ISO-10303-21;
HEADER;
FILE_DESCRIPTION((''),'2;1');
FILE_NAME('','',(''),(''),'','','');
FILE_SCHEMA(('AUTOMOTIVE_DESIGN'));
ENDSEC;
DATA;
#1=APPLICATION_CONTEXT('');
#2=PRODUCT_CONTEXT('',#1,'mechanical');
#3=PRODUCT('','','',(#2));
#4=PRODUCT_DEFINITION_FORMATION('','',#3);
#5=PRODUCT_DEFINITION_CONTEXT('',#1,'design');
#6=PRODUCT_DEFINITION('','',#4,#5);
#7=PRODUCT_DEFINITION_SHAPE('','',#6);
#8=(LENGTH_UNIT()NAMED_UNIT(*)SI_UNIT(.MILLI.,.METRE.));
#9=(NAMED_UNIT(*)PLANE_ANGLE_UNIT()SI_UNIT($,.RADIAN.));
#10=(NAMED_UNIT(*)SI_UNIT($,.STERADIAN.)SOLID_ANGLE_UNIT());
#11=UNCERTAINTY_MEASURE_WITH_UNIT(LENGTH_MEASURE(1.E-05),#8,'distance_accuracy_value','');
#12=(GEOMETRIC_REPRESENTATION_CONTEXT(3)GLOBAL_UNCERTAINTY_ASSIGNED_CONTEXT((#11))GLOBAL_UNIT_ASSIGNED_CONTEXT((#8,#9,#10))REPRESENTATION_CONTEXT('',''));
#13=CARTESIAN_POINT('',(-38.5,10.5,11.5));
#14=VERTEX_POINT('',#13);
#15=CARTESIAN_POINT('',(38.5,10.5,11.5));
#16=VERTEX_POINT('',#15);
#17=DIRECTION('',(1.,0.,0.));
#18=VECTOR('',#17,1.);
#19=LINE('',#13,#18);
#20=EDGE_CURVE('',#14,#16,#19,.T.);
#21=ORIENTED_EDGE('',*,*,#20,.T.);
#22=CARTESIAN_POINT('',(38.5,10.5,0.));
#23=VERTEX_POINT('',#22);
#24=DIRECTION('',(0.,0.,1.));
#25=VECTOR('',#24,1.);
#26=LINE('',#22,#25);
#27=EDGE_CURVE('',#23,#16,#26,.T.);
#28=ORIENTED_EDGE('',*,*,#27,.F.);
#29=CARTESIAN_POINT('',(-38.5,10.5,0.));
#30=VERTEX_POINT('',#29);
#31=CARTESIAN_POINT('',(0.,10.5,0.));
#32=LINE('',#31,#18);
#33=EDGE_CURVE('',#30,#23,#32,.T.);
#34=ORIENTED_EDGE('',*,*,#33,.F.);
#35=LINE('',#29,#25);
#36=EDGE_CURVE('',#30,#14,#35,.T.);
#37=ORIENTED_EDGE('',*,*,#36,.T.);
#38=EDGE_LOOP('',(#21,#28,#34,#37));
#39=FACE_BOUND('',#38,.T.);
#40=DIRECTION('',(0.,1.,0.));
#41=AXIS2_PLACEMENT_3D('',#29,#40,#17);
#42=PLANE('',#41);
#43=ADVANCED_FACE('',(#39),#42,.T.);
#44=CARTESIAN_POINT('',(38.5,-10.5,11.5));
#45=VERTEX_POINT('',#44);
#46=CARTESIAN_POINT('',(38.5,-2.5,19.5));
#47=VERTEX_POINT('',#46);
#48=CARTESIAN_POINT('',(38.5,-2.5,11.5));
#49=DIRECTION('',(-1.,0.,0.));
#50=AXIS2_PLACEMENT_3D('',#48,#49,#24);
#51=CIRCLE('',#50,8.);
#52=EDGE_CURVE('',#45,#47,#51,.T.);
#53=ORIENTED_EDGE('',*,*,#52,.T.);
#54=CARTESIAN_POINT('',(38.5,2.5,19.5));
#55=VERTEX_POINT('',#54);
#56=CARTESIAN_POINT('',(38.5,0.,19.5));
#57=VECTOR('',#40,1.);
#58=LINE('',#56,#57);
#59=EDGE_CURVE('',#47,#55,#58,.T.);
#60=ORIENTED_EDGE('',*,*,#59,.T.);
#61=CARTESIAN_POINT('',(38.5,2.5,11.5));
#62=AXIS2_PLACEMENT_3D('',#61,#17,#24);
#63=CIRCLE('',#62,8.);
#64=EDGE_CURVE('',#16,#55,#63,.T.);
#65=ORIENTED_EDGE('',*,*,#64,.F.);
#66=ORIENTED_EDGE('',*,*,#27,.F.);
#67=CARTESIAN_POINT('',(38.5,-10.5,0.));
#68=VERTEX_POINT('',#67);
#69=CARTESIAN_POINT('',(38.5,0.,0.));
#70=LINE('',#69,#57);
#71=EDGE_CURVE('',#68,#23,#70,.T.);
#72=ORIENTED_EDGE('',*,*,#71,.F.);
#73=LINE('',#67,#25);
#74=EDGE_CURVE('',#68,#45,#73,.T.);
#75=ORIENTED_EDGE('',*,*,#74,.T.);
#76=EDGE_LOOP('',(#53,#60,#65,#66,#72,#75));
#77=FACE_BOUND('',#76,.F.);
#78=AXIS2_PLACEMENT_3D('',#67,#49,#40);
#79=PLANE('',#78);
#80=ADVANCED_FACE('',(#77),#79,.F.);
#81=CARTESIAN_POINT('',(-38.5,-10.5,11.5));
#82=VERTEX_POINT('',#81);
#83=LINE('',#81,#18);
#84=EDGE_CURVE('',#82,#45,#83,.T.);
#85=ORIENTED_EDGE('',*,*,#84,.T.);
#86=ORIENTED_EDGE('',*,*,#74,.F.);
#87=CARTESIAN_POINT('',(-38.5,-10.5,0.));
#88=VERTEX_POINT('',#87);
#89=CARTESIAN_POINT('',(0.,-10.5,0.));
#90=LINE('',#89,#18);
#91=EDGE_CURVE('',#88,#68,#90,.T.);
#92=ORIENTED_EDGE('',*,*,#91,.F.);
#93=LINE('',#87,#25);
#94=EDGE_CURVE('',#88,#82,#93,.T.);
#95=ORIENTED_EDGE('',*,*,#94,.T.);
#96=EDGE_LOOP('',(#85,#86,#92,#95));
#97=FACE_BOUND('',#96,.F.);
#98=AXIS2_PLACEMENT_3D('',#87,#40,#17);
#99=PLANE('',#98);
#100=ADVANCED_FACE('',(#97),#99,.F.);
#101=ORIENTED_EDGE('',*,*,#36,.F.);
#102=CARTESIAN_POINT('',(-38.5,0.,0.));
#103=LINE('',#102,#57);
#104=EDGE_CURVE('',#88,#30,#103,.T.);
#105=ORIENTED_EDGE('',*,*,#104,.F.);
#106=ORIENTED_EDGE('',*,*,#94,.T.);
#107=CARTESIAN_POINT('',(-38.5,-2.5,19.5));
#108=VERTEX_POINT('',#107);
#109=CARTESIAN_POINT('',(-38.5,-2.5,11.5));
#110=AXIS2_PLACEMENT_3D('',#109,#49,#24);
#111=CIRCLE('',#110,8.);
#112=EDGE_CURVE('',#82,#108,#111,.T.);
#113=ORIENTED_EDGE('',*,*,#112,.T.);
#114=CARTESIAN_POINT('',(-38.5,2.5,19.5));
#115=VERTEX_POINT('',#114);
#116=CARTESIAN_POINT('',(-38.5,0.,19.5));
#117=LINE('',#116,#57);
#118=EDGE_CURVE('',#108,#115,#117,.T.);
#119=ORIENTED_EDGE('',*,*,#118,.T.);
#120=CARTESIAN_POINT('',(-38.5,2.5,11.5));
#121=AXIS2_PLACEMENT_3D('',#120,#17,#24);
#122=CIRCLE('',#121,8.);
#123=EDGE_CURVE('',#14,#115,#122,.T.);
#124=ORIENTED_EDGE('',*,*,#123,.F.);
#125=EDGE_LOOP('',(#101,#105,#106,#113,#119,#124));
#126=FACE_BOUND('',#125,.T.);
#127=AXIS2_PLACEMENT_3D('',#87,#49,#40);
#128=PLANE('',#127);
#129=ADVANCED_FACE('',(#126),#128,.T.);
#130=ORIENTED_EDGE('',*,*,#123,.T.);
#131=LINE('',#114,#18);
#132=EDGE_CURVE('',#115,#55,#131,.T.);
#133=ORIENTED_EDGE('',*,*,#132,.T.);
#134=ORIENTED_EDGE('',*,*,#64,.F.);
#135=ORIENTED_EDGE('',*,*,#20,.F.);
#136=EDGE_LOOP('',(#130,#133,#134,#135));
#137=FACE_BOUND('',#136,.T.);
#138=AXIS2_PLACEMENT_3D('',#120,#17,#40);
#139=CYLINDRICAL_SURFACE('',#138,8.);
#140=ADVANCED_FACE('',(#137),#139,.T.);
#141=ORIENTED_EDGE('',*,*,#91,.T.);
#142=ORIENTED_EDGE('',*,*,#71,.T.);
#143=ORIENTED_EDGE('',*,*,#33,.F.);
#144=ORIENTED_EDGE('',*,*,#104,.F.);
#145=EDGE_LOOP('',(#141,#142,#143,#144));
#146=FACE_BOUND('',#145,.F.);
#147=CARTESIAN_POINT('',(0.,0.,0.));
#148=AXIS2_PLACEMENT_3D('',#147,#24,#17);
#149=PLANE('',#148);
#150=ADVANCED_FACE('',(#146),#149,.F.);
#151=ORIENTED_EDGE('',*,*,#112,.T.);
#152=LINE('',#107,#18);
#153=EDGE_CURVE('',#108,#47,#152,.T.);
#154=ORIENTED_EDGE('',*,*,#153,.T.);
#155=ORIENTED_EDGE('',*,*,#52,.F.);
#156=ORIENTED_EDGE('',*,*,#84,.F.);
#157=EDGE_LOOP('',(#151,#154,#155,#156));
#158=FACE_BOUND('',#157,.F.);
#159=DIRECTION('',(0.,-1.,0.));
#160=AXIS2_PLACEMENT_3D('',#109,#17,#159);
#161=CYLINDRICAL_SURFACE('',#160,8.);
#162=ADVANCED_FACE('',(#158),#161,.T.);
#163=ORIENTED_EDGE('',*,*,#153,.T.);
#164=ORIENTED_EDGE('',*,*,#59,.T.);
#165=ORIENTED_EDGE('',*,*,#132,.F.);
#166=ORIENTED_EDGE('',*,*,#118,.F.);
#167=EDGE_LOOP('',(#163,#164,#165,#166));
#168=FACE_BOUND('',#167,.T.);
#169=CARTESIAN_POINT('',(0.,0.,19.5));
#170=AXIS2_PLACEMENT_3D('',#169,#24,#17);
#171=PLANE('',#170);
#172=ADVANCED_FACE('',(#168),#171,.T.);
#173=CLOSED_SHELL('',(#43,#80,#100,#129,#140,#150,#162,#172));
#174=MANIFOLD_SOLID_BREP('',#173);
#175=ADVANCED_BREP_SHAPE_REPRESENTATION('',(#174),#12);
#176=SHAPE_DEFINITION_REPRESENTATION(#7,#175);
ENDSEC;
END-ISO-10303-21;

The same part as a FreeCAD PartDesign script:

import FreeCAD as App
import Part
import Sketcher
from FreeCAD import Vector


def edges_at(feature, points):
    """Names of the edges that pass closest to the given points."""
    edges = feature.Shape.Edges
    near = lambda p: min(range(len(edges)), key=lambda i: edges[i].distToShape(Part.Vertex(*p))[0])
    return sorted({f"Edge{near(p) + 1}" for p in points})

doc = App.newDocument("Part")
body = doc.addObject("PartDesign::Body", "Body")

sketch1 = body.newObject("Sketcher::SketchObject", "Sketch")
sketch1.AttachmentSupport = (doc.getObject("XY_Plane"), [""])
sketch1.MapMode = "FlatFace"
sketch1.addGeometry([
    Part.LineSegment(Vector(-38, 10, 0), Vector(-38, -10, 0)),
    Part.LineSegment(Vector(-38, -10, 0), Vector(38, -10, 0)),
    Part.LineSegment(Vector(38, -10, 0), Vector(38, 10, 0)),
    Part.LineSegment(Vector(38, 10, 0), Vector(-38, 10, 0)),
], False)
sketch1.addConstraint([
    Sketcher.Constraint("Coincident", 0, 2, 1, 1),
    Sketcher.Constraint("Coincident", 1, 2, 2, 1),
    Sketcher.Constraint("Coincident", 2, 2, 3, 1),
    Sketcher.Constraint("Coincident", 3, 2, 0, 1),
    Sketcher.Constraint("Vertical", 0),
    Sketcher.Constraint("Horizontal", 1),
    Sketcher.Constraint("Vertical", 2),
    Sketcher.Constraint("Horizontal", 3),
    Sketcher.Constraint("Symmetric", 0, 2, 2, 2, -1, 1),
    Sketcher.Constraint("DistanceX", 1, 1, 1, 2, 77.0),
    Sketcher.Constraint("DistanceY", 0, 2, 0, 1, 21.0),
])
pad1 = body.newObject("PartDesign::Pad", "Pad")
pad1.Profile = sketch1
pad1.Length = 19.5
doc.recompute()

fillet = body.newObject("PartDesign::Fillet", "Fillet")
fillet.Base = (pad1, edges_at(pad1, [(0, -10.5, 19.5), (0, 10.5, 19.5)]))
fillet.Radius = 8

doc.recompute()
